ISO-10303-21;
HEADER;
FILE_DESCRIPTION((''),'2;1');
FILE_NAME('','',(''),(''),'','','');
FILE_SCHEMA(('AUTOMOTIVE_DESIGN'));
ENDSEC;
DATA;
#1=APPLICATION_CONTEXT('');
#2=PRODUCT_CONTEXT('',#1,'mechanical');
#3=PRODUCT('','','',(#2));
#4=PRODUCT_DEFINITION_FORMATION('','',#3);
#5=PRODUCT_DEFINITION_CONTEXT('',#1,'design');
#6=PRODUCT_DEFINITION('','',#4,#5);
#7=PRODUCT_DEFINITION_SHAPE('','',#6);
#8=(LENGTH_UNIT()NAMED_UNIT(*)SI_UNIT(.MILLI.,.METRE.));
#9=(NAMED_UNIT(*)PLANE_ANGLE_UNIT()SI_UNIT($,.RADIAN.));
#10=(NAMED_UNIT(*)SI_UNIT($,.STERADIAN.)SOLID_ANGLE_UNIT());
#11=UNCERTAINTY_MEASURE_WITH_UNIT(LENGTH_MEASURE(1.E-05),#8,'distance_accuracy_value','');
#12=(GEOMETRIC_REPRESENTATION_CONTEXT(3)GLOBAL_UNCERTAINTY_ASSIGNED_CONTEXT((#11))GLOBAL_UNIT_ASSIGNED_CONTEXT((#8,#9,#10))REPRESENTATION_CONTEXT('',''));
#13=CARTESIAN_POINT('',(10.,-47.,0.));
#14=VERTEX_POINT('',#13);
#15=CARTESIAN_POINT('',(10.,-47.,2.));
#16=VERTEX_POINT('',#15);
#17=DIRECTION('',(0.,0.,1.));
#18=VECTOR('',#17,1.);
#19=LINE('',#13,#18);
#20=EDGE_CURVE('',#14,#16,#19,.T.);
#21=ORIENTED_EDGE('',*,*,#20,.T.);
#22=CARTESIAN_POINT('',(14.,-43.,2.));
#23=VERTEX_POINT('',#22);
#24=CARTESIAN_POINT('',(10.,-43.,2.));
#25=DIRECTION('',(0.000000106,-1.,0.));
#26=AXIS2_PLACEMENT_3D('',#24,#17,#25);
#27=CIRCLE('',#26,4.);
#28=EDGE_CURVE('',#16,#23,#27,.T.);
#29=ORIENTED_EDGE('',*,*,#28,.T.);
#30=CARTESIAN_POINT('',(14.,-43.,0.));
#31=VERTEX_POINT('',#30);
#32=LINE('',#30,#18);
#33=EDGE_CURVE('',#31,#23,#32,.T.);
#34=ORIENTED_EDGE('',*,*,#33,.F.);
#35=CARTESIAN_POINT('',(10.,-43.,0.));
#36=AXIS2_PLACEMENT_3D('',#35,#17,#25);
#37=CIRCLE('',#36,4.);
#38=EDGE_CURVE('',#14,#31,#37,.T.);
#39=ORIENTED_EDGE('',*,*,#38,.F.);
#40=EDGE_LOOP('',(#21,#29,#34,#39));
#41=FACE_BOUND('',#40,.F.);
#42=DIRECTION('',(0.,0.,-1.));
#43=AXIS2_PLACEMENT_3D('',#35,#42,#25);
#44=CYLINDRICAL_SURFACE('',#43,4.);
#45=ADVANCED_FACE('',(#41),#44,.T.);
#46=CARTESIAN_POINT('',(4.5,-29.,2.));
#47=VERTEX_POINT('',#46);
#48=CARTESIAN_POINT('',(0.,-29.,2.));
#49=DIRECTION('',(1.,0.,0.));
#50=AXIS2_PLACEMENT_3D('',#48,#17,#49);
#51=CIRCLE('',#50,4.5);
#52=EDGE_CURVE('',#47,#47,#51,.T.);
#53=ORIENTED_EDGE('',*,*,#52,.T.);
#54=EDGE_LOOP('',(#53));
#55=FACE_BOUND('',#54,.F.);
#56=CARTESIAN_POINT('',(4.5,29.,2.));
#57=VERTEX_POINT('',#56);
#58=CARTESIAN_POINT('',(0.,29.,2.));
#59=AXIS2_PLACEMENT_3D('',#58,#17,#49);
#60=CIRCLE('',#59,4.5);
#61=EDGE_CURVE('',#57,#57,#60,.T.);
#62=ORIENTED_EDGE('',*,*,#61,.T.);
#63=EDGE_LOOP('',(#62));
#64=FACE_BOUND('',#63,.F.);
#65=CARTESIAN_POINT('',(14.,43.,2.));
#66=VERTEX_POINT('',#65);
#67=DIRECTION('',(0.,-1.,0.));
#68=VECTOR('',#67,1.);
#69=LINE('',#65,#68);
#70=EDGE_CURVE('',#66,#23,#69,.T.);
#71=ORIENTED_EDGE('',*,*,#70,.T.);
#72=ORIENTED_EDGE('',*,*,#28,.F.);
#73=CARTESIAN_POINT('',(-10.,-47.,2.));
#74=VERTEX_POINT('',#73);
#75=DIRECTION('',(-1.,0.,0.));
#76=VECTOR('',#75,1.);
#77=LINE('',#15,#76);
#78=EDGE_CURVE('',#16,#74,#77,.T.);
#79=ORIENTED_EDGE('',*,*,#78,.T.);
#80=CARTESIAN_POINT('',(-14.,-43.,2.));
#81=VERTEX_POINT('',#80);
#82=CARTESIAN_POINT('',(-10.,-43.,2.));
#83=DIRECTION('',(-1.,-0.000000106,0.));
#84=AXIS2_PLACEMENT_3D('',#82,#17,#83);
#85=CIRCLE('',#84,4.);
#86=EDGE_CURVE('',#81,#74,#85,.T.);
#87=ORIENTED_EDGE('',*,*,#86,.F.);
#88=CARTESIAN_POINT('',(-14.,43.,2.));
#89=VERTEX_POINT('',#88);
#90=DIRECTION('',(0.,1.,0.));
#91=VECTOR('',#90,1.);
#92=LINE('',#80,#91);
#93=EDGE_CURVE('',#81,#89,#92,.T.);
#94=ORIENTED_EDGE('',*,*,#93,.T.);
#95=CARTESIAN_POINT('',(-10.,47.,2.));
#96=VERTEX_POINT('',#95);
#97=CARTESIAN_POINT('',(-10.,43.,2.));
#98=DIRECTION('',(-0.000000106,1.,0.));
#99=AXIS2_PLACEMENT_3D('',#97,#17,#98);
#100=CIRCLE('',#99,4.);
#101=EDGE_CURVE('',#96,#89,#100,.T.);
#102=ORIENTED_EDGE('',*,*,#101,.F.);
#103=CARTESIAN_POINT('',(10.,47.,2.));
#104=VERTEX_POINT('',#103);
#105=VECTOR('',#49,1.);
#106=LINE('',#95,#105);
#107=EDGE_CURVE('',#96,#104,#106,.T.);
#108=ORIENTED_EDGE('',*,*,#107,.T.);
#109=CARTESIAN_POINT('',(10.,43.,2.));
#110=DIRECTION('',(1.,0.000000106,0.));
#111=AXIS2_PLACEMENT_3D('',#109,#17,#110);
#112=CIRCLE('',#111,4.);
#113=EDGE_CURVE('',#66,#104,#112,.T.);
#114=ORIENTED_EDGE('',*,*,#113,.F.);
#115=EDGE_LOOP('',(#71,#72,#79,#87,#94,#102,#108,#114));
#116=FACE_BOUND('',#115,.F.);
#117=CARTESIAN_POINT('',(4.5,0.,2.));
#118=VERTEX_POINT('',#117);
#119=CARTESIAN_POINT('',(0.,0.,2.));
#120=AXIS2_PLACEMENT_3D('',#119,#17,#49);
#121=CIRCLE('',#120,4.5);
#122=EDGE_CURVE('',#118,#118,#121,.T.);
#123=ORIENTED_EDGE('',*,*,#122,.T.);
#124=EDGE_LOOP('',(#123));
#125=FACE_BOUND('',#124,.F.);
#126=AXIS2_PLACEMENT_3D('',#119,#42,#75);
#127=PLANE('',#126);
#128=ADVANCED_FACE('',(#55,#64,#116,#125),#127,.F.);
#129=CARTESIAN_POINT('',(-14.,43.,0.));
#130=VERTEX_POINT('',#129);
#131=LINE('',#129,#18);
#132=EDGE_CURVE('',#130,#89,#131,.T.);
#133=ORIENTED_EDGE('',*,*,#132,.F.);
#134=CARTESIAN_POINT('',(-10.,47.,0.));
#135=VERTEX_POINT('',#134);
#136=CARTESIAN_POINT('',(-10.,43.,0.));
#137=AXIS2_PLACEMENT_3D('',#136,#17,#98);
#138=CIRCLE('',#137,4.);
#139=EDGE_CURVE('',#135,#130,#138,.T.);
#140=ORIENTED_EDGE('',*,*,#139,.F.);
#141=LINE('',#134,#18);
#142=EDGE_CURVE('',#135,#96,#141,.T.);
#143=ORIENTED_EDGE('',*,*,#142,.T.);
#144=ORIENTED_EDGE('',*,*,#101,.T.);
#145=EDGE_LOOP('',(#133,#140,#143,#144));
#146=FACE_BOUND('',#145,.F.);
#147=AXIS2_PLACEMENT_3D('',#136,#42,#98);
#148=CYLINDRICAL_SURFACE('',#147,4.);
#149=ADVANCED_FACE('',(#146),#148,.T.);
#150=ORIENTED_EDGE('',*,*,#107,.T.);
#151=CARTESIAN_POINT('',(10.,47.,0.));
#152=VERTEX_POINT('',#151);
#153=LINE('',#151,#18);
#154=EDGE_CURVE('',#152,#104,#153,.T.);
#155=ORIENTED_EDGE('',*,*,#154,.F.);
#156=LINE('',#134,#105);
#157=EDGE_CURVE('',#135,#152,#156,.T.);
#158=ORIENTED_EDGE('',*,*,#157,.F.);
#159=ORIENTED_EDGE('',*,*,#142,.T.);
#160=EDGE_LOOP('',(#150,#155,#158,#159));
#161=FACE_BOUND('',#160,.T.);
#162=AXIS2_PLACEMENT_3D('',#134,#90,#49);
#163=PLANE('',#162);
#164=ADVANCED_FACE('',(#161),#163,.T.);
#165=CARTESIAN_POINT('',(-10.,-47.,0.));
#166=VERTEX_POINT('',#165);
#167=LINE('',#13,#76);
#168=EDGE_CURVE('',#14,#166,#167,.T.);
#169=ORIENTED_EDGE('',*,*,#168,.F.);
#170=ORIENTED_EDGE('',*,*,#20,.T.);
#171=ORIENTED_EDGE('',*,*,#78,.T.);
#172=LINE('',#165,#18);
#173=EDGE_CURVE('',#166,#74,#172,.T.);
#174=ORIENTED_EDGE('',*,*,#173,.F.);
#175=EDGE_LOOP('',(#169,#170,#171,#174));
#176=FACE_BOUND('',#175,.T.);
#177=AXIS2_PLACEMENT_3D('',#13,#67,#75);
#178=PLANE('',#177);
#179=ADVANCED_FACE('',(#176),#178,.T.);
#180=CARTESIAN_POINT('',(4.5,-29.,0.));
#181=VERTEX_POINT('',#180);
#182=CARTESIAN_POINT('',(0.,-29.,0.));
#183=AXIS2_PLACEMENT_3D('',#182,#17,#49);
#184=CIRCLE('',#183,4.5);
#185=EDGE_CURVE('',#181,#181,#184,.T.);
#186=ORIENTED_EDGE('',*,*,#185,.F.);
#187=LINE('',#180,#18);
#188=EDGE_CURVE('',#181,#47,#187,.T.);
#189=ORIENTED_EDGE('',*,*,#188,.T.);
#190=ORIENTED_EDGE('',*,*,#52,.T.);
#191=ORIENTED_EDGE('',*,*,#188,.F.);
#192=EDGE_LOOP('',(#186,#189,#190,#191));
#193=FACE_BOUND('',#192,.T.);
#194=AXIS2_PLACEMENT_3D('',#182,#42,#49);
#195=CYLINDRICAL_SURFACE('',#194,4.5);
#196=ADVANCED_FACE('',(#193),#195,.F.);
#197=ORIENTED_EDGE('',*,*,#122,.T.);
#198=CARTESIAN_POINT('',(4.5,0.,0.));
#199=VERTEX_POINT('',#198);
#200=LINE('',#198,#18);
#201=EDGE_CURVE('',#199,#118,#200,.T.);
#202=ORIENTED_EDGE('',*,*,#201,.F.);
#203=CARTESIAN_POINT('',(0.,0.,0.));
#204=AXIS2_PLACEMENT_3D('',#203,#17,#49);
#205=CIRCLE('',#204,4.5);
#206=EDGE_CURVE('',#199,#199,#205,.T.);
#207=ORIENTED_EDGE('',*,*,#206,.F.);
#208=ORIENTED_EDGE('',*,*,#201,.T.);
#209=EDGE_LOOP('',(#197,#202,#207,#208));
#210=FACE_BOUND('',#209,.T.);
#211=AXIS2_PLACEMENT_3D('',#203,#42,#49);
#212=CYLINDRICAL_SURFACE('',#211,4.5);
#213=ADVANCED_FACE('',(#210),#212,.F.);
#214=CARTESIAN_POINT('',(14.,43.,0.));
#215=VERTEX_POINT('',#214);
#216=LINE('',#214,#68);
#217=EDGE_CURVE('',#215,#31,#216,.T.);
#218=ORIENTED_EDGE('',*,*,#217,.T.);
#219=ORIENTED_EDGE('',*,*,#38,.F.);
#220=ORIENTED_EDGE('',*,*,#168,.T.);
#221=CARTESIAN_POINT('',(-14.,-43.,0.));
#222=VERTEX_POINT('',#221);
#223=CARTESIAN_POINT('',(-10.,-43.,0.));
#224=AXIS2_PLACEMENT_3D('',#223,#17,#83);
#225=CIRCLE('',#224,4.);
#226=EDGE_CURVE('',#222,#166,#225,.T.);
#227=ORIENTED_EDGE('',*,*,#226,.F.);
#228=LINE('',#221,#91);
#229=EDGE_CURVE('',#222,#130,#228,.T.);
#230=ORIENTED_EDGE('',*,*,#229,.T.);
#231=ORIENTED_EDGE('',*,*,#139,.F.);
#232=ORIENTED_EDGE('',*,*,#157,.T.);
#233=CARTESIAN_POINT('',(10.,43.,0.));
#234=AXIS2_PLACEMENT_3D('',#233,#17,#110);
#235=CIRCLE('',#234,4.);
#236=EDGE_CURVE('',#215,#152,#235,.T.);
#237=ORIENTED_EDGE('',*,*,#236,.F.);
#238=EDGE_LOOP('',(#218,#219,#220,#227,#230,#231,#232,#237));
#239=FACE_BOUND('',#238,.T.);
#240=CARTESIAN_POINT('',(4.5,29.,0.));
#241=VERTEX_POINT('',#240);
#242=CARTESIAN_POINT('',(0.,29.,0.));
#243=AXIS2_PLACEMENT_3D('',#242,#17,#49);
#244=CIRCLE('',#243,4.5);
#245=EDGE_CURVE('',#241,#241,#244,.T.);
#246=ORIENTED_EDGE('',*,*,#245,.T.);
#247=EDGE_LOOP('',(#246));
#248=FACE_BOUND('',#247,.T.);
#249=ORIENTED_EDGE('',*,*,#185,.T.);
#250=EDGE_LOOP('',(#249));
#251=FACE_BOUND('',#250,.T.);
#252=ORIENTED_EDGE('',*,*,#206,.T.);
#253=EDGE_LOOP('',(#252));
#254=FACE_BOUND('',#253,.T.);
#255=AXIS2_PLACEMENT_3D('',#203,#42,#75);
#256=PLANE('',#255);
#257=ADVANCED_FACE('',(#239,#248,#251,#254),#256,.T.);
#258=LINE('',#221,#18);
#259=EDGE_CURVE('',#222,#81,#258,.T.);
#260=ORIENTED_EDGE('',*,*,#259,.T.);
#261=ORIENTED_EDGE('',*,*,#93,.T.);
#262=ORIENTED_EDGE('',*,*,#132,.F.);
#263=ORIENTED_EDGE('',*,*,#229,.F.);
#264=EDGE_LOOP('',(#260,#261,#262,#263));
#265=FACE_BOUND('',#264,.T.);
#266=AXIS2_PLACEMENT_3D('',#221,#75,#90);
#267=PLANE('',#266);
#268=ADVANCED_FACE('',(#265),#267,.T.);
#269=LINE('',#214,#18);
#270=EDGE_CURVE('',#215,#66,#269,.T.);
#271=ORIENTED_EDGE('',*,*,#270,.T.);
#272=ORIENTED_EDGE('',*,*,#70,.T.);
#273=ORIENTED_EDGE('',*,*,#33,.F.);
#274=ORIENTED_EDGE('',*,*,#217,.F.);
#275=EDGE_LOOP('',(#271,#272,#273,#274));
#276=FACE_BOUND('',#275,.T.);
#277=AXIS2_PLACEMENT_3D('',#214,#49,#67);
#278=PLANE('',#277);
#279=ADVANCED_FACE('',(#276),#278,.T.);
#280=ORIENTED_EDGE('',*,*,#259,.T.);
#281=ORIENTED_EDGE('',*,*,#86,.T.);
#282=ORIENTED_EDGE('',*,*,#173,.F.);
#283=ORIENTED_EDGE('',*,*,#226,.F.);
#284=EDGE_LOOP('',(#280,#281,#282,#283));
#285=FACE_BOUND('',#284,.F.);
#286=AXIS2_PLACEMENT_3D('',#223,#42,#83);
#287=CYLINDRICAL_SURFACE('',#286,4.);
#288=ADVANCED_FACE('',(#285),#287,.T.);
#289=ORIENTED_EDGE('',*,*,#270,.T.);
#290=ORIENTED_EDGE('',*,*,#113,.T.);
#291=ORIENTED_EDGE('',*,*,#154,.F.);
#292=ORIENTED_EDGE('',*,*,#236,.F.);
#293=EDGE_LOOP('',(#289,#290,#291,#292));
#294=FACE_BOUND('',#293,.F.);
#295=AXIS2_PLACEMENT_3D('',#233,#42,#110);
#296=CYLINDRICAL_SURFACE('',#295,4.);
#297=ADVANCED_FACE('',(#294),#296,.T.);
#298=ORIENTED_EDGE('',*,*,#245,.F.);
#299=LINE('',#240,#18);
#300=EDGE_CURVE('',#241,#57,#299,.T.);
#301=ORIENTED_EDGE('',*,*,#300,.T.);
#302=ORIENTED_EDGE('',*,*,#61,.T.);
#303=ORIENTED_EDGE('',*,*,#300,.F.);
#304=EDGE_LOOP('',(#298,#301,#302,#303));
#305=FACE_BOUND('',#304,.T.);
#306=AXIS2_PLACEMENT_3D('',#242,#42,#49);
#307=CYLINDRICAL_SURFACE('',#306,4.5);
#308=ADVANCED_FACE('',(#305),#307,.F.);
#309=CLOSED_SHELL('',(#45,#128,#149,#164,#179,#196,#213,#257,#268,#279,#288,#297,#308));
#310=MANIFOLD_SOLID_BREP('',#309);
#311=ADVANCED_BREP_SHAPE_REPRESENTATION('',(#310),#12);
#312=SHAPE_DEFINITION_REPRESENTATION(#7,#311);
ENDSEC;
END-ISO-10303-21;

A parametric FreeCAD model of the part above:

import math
import FreeCAD as App
import Part
import Sketcher

doc = App.newDocument("Part")
params = doc.addObject("Spreadsheet::Sheet", "Params")
for row, (alias, value) in enumerate([
    ("sketch1_diameter", "9 mm"),
    ("sketch1_radius", "4 mm"),
    ("sketch1_width", "20 mm"),
    ("sketch1_height", "86 mm"),
    ("pad1_length", "2 mm"),
], start=1):
    params.set(f"A{row}", alias)
    params.set(f"B{row}", "=" + value)
    params.setAlias(f"B{row}", alias)

body = doc.addObject("PartDesign::Body", "Body")

sketch1 = body.newObject("Sketcher::SketchObject", "Sketch")
sketch1.AttachmentSupport = (doc.getObject("XY_Plane"), [""])
sketch1.MapMode = "FlatFace"
sketch1.addGeometry([
    Part.LineSegment(App.Vector(10, 47, 0), App.Vector(-10, 47, 0)),
    Part.ArcOfCircle(Part.Circle(App.Vector(-10, 43, 0), App.Vector(0, 0, 1), 4), math.radians(90.000006), math.radians(179.999994)),
    Part.LineSegment(App.Vector(-14, 43, 0), App.Vector(-14, -43, 0)),
    Part.ArcOfCircle(Part.Circle(App.Vector(-10, -43, 0), App.Vector(0, 0, 1), 4), math.radians(-179.999994), math.radians(-90.000006)),
    Part.LineSegment(App.Vector(-10, -47, 0), App.Vector(10, -47, 0)),
    Part.ArcOfCircle(Part.Circle(App.Vector(10, -43, 0), App.Vector(0, 0, 1), 4), math.radians(-89.999994), math.radians(-0.000006)),
    Part.LineSegment(App.Vector(14, -43, 0), App.Vector(14, 43, 0)),
    Part.ArcOfCircle(Part.Circle(App.Vector(10, 43, 0), App.Vector(0, 0, 1), 4), math.radians(0.000006), math.radians(89.999994)),
    Part.Circle(App.Vector(0, -29, 0), App.Vector(0, 0, 1), 4.5),
    Part.Circle(App.Vector(0, 0, 0), App.Vector(0, 0, 1), 4.5),
    Part.Circle(App.Vector(0, 29, 0), App.Vector(0, 0, 1), 4.5),
], False)
sketch1.addConstraint([
    Sketcher.Constraint("Tangent", 0, 2, 1, 1),
    Sketcher.Constraint("Tangent", 1, 2, 2, 1),
    Sketcher.Constraint("Tangent", 2, 2, 3, 1),
    Sketcher.Constraint("Tangent", 3, 2, 4, 1),
    Sketcher.Constraint("Tangent", 4, 2, 5, 1),
    Sketcher.Constraint("Tangent", 5, 2, 6, 1),
    Sketcher.Constraint("Tangent", 6, 2, 7, 1),
    Sketcher.Constraint("Tangent", 7, 2, 0, 1),
    Sketcher.Constraint("Horizontal", 0),
    Sketcher.Constraint("Vertical", 2),
    Sketcher.Constraint("Horizontal", 4),
    Sketcher.Constraint("Vertical", 6),
    Sketcher.Constraint("Coincident", 9, 3, -1, 1),
    Sketcher.Constraint("Equal", 1, 3),
    Sketcher.Constraint("Equal", 3, 5),
    Sketcher.Constraint("Equal", 5, 7),
    Sketcher.Constraint("Equal", 8, 9),
    Sketcher.Constraint("Equal", 9, 10),
    Sketcher.Constraint("Symmetric", 1, 3, 5, 3, -1, 1),
    Sketcher.Constraint("Symmetric", 8, 3, 10, 3, -1, 1),
    Sketcher.Constraint("PointOnObject", 8, 3, -2),
    Sketcher.Constraint("Diameter", 8, 9.0),
    Sketcher.Constraint("Radius", 1, 4.0),
    Sketcher.Constraint("DistanceX", 0, 2, 0, 1, 20.0),
    Sketcher.Constraint("DistanceY", 2, 2, 2, 1, 86.0),
    Sketcher.Constraint("DistanceY", 8, 3, -1, 1, 29.0),
])
sketch1.setExpression("Constraints[21]", "Params.sketch1_diameter")
sketch1.setExpression("Constraints[22]", "Params.sketch1_radius")
sketch1.setExpression("Constraints[23]", "Params.sketch1_width")
sketch1.setExpression("Constraints[24]", "Params.sketch1_height")
pad1 = body.newObject("PartDesign::Pad", "Pad")
pad1.Profile = sketch1
pad1.setExpression("Length", "Params.pad1_length")

doc.recompute()
